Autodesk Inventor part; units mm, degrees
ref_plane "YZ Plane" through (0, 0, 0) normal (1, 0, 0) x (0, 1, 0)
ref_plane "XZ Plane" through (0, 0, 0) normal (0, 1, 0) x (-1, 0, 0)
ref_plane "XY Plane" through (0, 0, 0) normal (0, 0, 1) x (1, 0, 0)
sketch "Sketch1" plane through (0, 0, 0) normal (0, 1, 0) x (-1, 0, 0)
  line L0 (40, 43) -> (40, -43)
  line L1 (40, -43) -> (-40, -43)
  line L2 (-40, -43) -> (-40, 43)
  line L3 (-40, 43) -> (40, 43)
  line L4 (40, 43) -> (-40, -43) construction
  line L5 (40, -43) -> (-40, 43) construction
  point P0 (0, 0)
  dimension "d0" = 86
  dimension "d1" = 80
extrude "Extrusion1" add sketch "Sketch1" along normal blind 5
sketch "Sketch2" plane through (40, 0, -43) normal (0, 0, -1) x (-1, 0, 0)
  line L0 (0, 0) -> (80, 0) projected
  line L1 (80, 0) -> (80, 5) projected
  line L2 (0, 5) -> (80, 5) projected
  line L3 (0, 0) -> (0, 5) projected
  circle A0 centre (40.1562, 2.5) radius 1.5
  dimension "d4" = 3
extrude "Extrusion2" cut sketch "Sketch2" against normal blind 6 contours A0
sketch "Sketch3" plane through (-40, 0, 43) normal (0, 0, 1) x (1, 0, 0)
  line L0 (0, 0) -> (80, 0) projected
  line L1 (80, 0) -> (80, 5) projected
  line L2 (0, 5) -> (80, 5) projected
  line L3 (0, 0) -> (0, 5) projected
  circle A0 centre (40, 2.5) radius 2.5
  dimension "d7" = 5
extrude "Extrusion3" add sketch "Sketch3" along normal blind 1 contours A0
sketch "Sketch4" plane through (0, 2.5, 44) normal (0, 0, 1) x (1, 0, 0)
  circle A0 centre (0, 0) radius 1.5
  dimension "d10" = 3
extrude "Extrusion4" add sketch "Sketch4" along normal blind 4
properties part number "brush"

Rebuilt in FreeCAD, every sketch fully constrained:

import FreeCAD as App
import Part
import Sketcher

V = App.Vector
Q = App.Units.Quantity

doc = App.newDocument("Part")
params = doc.addObject("Spreadsheet::Sheet", "Params")
for row, (alias, value) in enumerate([
    ("sketch1_width", "80 mm"),
    ("sketch1_height", "86 mm"),
    ("pad1_length", "5 mm"),
    ("sketch2_diameter", "3 mm"),
    ("pocket1_length", "6 mm"),
    ("sketch3_diameter", "5 mm"),
    ("pad2_length", "1 mm"),
    ("sketch4_diameter", "3 mm"),
    ("pad3_length", "4 mm"),
], start=1):
    params.set(f"A{row}", alias)
    params.set(f"B{row}", "=" + value)
    params.setAlias(f"B{row}", alias)

body = doc.addObject("PartDesign::Body", "Body")

sketch1 = doc.addObject("Sketcher::SketchObject", "Sketch")
body.addObject(sketch1)
sketch1.AttachmentSupport = (doc.XZ_Plane, [""])
sketch1.MapMode = "FlatFace"
sketch1.addGeometry([
    Part.LineSegment(V(-40, -43, 0), V(-40, 43, 0)),
    Part.LineSegment(V(-40, 43, 0), V(40, 43, 0)),
    Part.LineSegment(V(40, 43, 0), V(40, -43, 0)),
    Part.LineSegment(V(40, -43, 0), V(-40, -43, 0)),
], False)
sketch1.addConstraint([
    Sketcher.Constraint("Coincident", 0, 2, 1, 1),
    Sketcher.Constraint("Coincident", 1, 2, 2, 1),
    Sketcher.Constraint("Coincident", 2, 2, 3, 1),
    Sketcher.Constraint("Coincident", 3, 2, 0, 1),
    Sketcher.Constraint("Vertical", 0),
    Sketcher.Constraint("Horizontal", 1),
    Sketcher.Constraint("Vertical", 2),
    Sketcher.Constraint("Horizontal", 3),
    Sketcher.Constraint("Symmetric", 0, 2, 2, 2, -1, 1),
    Sketcher.Constraint("DistanceX", 1, 1, 1, 2, Q("80 mm")),
    Sketcher.Constraint("DistanceY", 0, 1, 0, 2, Q("86 mm")),
])
sketch1.setExpression("Constraints[9]", "Params.sketch1_width")
sketch1.setExpression("Constraints[10]", "Params.sketch1_height")
pad1 = doc.addObject("PartDesign::Pad", "Pad")
body.addObject(pad1)
pad1.Profile = sketch1
pad1.setExpression("Length", "Params.pad1_length")
pad1.Reversed = True

sketch2 = doc.addObject("Sketcher::SketchObject", "Sketch001")
body.addObject(sketch2)
sketch2.AttachmentSupport = (doc.XY_Plane, [""])
sketch2.MapMode = "FlatFace"
sketch2.AttachmentOffset = App.Placement(V(0, 0, -43), App.Rotation())
sketch2.addGeometry(Part.Circle(V(-0.1562, 2.5, 0), V(0, 0, 1), 1.5), False)
sketch2.addConstraint([
    Sketcher.Constraint("Diameter", 0, Q("3 mm")),
    Sketcher.Constraint("DistanceY", -1, 1, 0, 3, Q("2.5 mm")),
    Sketcher.Constraint("DistanceX", 0, 3, -1, 1, Q("0.1562 mm")),
])
sketch2.setExpression("Constraints[0]", "Params.sketch2_diameter")
pocket1 = doc.addObject("PartDesign::Pocket", "Pocket")
body.addObject(pocket1)
pocket1.Profile = sketch2
pocket1.setExpression("Length", "Params.pocket1_length")
pocket1.Reversed = True

sketch3 = doc.addObject("Sketcher::SketchObject", "Sketch002")
body.addObject(sketch3)
sketch3.AttachmentSupport = (doc.XY_Plane, [""])
sketch3.MapMode = "FlatFace"
sketch3.AttachmentOffset = App.Placement(V(0, 0, 43), App.Rotation())
sketch3.addGeometry(Part.Circle(V(0, 2.5, 0), V(0, 0, 1), 2.5), False)
sketch3.addConstraint([
    Sketcher.Constraint("PointOnObject", 0, 3, -2),
    Sketcher.Constraint("Diameter", 0, Q("5 mm")),
    Sketcher.Constraint("DistanceY", -1, 1, 0, 3, Q("2.5 mm")),
])
sketch3.setExpression("Constraints[1]", "Params.sketch3_diameter")
pad2 = doc.addObject("PartDesign::Pad", "Pad001")
body.addObject(pad2)
pad2.Profile = sketch3
pad2.setExpression("Length", "Params.pad2_length")

sketch4 = doc.addObject("Sketcher::SketchObject", "Sketch003")
body.addObject(sketch4)
sketch4.AttachmentSupport = (doc.XY_Plane, [""])
sketch4.MapMode = "FlatFace"
sketch4.AttachmentOffset = App.Placement(V(0, 0, 44), App.Rotation())
sketch4.addGeometry(Part.Circle(V(0, 2.5, 0), V(0, 0, 1), 1.5), False)
sketch4.addConstraint([
    Sketcher.Constraint("PointOnObject", 0, 3, -2),
    Sketcher.Constraint("Diameter", 0, Q("3 mm")),
    Sketcher.Constraint("DistanceY", -1, 1, 0, 3, Q("2.5 mm")),
])
sketch4.setExpression("Constraints[1]", "Params.sketch4_diameter")
pad3 = doc.addObject("PartDesign::Pad", "Pad002")
body.addObject(pad3)
pad3.Profile = sketch4
pad3.setExpression("Length", "Params.pad3_length")

doc.recompute()
